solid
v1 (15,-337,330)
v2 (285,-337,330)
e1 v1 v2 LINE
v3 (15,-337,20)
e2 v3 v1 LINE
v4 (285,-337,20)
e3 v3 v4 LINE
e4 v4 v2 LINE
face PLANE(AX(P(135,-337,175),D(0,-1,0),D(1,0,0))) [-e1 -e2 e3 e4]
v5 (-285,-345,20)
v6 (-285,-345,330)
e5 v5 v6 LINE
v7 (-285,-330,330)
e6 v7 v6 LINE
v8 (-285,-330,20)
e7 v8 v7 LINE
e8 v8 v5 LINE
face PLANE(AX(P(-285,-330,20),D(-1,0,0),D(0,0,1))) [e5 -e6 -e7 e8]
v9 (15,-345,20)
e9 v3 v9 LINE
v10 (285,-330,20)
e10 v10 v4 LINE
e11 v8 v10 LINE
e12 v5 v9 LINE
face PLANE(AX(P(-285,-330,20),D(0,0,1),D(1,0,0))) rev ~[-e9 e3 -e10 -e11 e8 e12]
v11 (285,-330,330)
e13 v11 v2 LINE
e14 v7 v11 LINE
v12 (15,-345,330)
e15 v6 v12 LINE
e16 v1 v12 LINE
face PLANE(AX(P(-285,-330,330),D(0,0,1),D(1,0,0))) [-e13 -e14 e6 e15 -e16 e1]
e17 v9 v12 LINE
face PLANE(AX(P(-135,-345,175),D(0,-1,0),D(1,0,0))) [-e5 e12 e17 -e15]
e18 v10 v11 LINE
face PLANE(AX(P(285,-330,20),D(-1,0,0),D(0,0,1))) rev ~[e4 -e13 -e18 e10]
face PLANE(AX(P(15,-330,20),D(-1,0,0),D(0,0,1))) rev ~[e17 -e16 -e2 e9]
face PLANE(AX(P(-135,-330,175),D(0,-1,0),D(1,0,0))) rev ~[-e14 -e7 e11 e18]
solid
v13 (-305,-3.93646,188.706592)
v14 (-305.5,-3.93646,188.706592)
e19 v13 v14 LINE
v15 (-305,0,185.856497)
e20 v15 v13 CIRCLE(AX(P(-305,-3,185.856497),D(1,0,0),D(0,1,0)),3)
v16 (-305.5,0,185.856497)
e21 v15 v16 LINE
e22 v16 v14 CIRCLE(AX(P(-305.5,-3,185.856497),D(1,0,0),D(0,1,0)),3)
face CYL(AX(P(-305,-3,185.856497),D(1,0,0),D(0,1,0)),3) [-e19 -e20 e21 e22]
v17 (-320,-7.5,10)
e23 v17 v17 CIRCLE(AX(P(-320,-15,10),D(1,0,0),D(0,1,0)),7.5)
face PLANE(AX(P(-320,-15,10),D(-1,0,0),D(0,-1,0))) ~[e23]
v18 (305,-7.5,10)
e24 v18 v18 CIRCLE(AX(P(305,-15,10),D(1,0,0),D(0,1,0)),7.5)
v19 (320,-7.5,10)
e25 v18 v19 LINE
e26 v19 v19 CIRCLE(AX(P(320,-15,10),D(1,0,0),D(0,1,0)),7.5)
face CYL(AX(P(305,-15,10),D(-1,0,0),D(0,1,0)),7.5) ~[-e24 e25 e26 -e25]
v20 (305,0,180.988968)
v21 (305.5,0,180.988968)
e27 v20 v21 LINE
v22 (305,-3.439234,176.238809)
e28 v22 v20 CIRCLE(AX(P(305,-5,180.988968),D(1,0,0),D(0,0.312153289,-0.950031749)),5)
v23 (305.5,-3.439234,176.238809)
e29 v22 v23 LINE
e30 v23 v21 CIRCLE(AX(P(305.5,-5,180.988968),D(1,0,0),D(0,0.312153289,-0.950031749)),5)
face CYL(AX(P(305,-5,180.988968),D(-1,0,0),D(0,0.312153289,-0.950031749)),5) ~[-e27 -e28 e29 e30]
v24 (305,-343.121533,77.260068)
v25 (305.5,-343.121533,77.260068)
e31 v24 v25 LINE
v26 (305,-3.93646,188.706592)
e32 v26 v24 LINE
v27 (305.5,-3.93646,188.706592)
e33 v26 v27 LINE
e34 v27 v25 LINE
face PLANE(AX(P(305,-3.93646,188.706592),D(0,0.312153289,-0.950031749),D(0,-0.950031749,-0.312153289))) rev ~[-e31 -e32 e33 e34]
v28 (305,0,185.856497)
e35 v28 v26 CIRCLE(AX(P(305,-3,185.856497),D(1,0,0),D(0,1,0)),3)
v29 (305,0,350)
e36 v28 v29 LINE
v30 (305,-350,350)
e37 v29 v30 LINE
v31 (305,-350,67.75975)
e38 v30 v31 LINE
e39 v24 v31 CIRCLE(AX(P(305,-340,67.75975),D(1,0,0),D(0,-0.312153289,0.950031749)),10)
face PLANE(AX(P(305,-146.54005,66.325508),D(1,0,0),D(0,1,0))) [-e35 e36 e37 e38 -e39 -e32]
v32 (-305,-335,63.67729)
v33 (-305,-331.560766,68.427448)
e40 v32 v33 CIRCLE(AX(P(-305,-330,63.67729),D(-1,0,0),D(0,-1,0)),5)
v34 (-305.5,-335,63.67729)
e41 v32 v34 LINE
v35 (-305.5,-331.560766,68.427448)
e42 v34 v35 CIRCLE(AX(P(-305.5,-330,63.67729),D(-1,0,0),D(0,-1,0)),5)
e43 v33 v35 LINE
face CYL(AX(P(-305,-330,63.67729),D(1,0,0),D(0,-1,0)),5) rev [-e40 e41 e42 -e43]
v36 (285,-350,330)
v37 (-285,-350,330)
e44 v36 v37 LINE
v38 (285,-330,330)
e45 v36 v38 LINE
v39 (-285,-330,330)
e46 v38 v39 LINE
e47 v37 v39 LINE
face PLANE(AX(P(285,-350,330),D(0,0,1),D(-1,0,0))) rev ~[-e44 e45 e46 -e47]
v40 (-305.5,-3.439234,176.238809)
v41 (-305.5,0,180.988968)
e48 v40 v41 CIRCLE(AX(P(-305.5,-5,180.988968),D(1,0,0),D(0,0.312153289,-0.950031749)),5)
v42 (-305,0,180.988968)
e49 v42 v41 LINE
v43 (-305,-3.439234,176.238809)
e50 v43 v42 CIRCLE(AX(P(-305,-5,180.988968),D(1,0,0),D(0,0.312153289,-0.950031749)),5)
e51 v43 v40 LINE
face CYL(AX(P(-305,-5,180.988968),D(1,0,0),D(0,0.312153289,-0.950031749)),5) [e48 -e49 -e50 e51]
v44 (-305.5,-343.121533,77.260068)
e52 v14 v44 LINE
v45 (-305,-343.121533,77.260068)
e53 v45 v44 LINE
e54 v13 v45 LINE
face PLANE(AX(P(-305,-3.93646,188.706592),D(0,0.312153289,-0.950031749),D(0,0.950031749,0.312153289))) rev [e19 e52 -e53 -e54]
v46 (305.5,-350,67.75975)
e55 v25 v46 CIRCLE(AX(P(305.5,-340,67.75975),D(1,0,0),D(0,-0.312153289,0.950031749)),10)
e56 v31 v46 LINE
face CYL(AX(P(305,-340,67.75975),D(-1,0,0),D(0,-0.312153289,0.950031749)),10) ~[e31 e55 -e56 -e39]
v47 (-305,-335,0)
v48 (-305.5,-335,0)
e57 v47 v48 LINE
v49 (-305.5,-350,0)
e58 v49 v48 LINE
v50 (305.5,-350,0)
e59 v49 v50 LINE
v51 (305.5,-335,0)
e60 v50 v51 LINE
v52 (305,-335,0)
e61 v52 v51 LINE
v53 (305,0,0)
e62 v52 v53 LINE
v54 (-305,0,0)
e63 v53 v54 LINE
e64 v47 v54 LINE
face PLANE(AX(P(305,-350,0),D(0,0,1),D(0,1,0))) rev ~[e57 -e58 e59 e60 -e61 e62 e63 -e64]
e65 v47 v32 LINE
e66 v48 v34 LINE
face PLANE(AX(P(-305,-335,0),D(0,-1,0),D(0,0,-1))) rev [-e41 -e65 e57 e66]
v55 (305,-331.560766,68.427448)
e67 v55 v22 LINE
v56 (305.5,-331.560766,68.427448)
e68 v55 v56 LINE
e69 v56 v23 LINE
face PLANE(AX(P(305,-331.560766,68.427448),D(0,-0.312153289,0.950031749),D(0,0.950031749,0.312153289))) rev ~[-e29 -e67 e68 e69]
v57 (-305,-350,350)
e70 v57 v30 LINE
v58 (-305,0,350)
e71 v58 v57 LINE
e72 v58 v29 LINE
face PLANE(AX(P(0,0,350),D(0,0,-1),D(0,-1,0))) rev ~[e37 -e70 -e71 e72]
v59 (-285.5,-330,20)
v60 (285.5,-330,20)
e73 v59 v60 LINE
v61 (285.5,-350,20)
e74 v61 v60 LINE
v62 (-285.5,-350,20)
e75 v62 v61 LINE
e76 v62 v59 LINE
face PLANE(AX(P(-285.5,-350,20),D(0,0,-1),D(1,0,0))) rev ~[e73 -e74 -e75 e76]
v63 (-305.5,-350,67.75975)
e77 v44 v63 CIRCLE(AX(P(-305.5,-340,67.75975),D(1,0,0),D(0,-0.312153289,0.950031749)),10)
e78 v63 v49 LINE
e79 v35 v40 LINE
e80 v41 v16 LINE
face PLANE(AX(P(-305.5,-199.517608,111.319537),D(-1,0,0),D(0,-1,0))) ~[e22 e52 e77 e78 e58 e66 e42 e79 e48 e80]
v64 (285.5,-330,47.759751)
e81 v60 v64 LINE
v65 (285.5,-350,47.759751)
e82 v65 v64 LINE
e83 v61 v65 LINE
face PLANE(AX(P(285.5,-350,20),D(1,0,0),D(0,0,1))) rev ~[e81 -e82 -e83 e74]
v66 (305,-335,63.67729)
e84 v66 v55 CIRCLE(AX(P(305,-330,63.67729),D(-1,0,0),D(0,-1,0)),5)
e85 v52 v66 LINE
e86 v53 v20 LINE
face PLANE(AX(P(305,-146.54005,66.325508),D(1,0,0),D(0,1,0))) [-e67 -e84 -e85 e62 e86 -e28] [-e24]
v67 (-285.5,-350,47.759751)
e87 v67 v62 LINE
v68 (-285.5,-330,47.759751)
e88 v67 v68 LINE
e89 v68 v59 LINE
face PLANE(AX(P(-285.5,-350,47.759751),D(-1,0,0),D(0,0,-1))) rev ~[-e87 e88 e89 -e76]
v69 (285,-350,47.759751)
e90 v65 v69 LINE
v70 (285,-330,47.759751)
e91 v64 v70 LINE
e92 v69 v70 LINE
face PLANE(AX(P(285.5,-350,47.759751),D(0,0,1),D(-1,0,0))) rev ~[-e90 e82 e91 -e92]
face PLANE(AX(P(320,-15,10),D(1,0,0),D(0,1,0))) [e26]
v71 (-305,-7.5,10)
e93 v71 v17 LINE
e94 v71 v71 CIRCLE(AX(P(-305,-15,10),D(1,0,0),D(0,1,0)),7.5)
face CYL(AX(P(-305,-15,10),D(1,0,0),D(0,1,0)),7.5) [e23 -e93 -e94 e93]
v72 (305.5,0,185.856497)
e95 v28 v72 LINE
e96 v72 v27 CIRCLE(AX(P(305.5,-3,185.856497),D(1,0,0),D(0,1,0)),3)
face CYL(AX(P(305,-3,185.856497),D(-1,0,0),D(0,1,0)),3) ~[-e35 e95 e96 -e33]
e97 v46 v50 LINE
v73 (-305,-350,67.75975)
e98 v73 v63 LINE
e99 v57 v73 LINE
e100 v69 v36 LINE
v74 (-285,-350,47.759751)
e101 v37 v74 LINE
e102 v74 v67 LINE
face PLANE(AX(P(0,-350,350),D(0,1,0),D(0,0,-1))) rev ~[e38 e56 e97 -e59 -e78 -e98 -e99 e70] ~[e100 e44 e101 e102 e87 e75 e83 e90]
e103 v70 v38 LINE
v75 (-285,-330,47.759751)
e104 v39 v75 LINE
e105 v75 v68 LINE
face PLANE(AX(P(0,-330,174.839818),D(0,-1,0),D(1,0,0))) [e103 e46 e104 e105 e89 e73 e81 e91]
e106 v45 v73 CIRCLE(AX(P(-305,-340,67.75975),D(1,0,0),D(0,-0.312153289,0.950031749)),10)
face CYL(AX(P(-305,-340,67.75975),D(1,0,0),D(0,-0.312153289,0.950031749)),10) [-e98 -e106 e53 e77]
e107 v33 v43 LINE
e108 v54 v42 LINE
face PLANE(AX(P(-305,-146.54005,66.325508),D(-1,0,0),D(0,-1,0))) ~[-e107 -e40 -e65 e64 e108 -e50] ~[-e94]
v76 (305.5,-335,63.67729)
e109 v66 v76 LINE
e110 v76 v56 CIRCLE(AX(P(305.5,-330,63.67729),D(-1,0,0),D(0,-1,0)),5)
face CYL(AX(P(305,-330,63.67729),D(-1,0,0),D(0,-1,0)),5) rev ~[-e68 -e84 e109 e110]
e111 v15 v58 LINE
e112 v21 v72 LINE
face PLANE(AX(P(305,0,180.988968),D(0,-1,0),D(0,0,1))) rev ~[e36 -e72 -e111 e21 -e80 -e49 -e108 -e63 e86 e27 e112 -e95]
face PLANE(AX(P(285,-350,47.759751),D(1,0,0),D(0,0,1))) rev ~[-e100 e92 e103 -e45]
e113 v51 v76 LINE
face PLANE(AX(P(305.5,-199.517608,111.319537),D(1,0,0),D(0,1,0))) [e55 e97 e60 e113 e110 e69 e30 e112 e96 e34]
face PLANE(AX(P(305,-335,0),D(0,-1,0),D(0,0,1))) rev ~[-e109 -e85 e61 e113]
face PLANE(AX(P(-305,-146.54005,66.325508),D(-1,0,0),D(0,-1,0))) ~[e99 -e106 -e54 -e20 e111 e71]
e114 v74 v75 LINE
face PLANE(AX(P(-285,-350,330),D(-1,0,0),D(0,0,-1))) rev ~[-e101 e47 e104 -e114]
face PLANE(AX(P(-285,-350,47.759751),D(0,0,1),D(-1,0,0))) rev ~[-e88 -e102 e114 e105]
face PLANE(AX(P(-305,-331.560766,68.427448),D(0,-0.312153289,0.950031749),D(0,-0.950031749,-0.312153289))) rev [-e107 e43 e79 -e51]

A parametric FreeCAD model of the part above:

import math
import FreeCAD as App
import Part
import Sketcher
from FreeCAD import Vector


def add_polygon(sketch, points):
    """Adds a closed chain of lines whose ends are joined by coincident constraints."""
    first, n = sketch.GeometryCount, len(points)
    for a, b in zip(points, points[1:] + points[:1]):
        sketch.addGeometry(Part.LineSegment(App.Vector(*a, 0), App.Vector(*b, 0)), False)
    for i in range(n):
        sketch.addConstraint(Sketcher.Constraint("Coincident", first + i, 2, first + (i + 1) % n, 1))

doc = App.newDocument("Part")
body = doc.addObject("PartDesign::Body", "Body")

sketch1 = body.newObject("Sketcher::SketchObject", "Sketch")
sketch1.AttachmentSupport = (doc.getObject("YZ_Plane"), [""])
sketch1.MapMode = "FlatFace"
add_polygon(sketch1, [(0, 0), (0, 350), (-350, 350), (-350, 0)])
sketch1.addConstraint([
    Sketcher.Constraint("Vertical", 0),
    Sketcher.Constraint("Horizontal", 1),
    Sketcher.Constraint("Vertical", 2),
    Sketcher.Constraint("Horizontal", 3),
    Sketcher.Constraint("Coincident", 3, 2, -1, 1),
    Sketcher.Constraint("Equal", 3, 0),
    Sketcher.Constraint("DistanceX", 1, 2, 1, 1, 350.0),
])
pad1 = body.newObject("PartDesign::Pad", "Pad")
pad1.Profile = sketch1
pad1.Length = 305

sketch2 = body.newObject("Sketcher::SketchObject", "Sketch001")
sketch2.AttachmentSupport = (doc.getObject("YZ_Plane"), [""])
sketch2.MapMode = "FlatFace"
sketch2.AttachmentOffset = App.Placement(Vector(0, 0, 305), App.Rotation())
sketch2.addGeometry(Part.Circle(Vector(-15, 10, 0), Vector(0, 0, 1), 8), False)
sketch2.addConstraint([
    Sketcher.Constraint("Diameter", 0, 15.0),
    Sketcher.Constraint("DistanceX", 0, 3, -1, 1, 15.0),
    Sketcher.Constraint("DistanceY", -1, 1, 0, 3, 10.0),
])
pad2 = body.newObject("PartDesign::Pad", "Pad001")
pad2.Profile = sketch2
pad2.Length = 15
body2 = doc.addObject("PartDesign::Body", "Body001")

sketch3 = body2.newObject("Sketcher::SketchObject", "Sketch002")
sketch3.AttachmentSupport = (doc.getObject("YZ_Plane001"), [""])
sketch3.MapMode = "FlatFace"
sketch3.AttachmentOffset = App.Placement(Vector(0, 0, 305), App.Rotation())
sketch3.addGeometry([
    Part.ArcOfCircle(Part.Circle(Vector(-3, 185.9, 0), Vector(0, 0, 1), 3), math.radians(0), math.radians(108)),
    Part.LineSegment(Vector(-3.9, 188.7, 0), Vector(-343.1, 77.3, 0)),
    Part.ArcOfCircle(Part.Circle(Vector(-340, 67.8, 0), Vector(0, 0, 1), 10), math.radians(108), math.radians(180)),
    Part.LineSegment(Vector(-350, 67.8, 0), Vector(-350, 0, 0)),
    Part.LineSegment(Vector(-350, 0, 0), Vector(-335, 0, 0)),
    Part.LineSegment(Vector(-335, 0, 0), Vector(-335, 63.7, 0)),
    Part.ArcOfCircle(Part.Circle(Vector(-330, 63.7, 0), Vector(0, 0, 1), 5), math.radians(108), math.radians(180)),
    Part.LineSegment(Vector(-331.6, 68.4, 0), Vector(-3.4, 176.2, 0)),
    Part.ArcOfCircle(Part.Circle(Vector(-5, 181, 0), Vector(0, 0, 1), 5), math.radians(-72), math.radians(0)),
    Part.LineSegment(Vector(0, 181, 0), Vector(0, 185.9, 0)),
], False)
sketch3.addConstraint([
    Sketcher.Constraint("Tangent", 0, 2, 1, 1),
    Sketcher.Constraint("Tangent", 1, 2, 2, 1),
    Sketcher.Constraint("Tangent", 2, 2, 3, 1),
    Sketcher.Constraint("Coincident", 3, 2, 4, 1),
    Sketcher.Constraint("Coincident", 4, 2, 5, 1),
    Sketcher.Constraint("Tangent", 5, 2, 6, 2),
    Sketcher.Constraint("Tangent", 6, 1, 7, 1),
    Sketcher.Constraint("Tangent", 7, 2, 8, 1),
    Sketcher.Constraint("Tangent", 8, 2, 9, 1),
    Sketcher.Constraint("Tangent", 9, 2, 0, 1),
    Sketcher.Constraint("Vertical", 3),
    Sketcher.Constraint("Horizontal", 4),
    Sketcher.Constraint("Vertical", 5),
    Sketcher.Constraint("Vertical", 9),
    Sketcher.Constraint("Equal", 6, 8),
    Sketcher.Constraint("PointOnObject", 3, 2, -1),
    Sketcher.Constraint("PointOnObject", 8, 2, -2),
    Sketcher.Constraint("Parallel", 1, 7),
    Sketcher.Constraint("Radius", 0, 3.0),
    Sketcher.Constraint("Radius", 2, 10.0),
    Sketcher.Constraint("Radius", 6, 5.0),
    Sketcher.Constraint("DistanceX", 4, 1, 4, 2, 15.0),
    Sketcher.Constraint("DistanceX", 2, 3, -1, 1, 340.0),
    Sketcher.Constraint("DistanceY", 3, 2, 3, 1, 67.75975),
    Sketcher.Constraint("DistanceY", 5, 1, 5, 2, 63.67729),
    Sketcher.Constraint("DistanceY", 9, 1, 9, 2, 4.867528),
])
pad3 = body2.newObject("PartDesign::Pad", "Pad002")
pad3.Profile = sketch3
pad3.Length = 0.5
body3 = doc.addObject("PartDesign::Body", "Body002")
doc.recompute()

mirroring = doc.addObject("Part::Mirroring", "Mirroring")
mirroring.Source = body
mirroring.Base = Vector(0, 0, 0)
mirroring.Normal = Vector(1, 0, 0)
body3.BaseFeature = mirroring
doc.recompute()
body4 = doc.addObject("PartDesign::Body", "Body003")
doc.recompute()

mirroring2 = doc.addObject("Part::Mirroring", "Mirroring001")
mirroring2.Source = body2
mirroring2.Base = Vector(0, 0, 0)
mirroring2.Normal = Vector(1, 0, 0)
body4.BaseFeature = mirroring2
doc.recompute()

boolean = body3.newObject("PartDesign::Boolean", "Boolean")
boolean.Type = "Fuse"
boolean.addObjects([body])
doc.recompute()

boolean2 = body3.newObject("PartDesign::Boolean", "Boolean001")
boolean2.Type = "Fuse"
boolean2.addObjects([body4])
doc.recompute()

boolean3 = body3.newObject("PartDesign::Boolean", "Boolean002")
boolean3.Type = "Fuse"
boolean3.addObjects([body2])

sketch4 = body3.newObject("Sketcher::SketchObject", "Sketch003")
sketch4.AttachmentSupport = (doc.getObject("XZ_Plane002"), [""])
sketch4.MapMode = "FlatFace"
sketch4.AttachmentOffset = App.Placement(Vector(0, 0, 350), App.Rotation())
add_polygon(sketch4, [(-285, 47.8), (-285.5, 47.8), (-285.5, 20), (285.5, 20), (285.5, 47.8), (285, 47.8), (285, 330), (-285, 330)])
sketch4.addConstraint([
    Sketcher.Constraint("Horizontal", 0),
    Sketcher.Constraint("Vertical", 1),
    Sketcher.Constraint("Horizontal", 2),
    Sketcher.Constraint("Vertical", 3),
    Sketcher.Constraint("Horizontal", 4),
    Sketcher.Constraint("Vertical", 5),
    Sketcher.Constraint("Horizontal", 6),
    Sketcher.Constraint("Vertical", 7),
    Sketcher.Constraint("Symmetric", 0, 2, 3, 2, -2),
    Sketcher.Constraint("Equal", 0, 4),
    Sketcher.Constraint("DistanceX", 2, 1, 2, 2, 571.000001),
    Sketcher.Constraint("DistanceX", 6, 2, 6, 1, 570.000001),
    Sketcher.Constraint("DistanceY", -1, 1, 1, 2, 20.0),
    Sketcher.Constraint("DistanceY", -1, 1, 5, 2, 330.0),
    Sketcher.Constraint("DistanceY", 1, 2, 1, 1, 27.759751),
])
pocket1 = body3.newObject("PartDesign::Pocket", "Pocket")
pocket1.Profile = sketch4
pocket1.Length = 20
body5 = doc.addObject("PartDesign::Body", "Body004")

sketch5 = body5.newObject("Sketcher::SketchObject", "Sketch004")
sketch5.AttachmentSupport = (doc.getObject("XZ_Plane004"), [""])
sketch5.MapMode = "FlatFace"
sketch5.AttachmentOffset = App.Placement(Vector(0, 0, 330), App.Rotation())
add_polygon(sketch5, [(-285, 330), (-285, 20), (15, 20), (15, 330)])
sketch5.addConstraint([
    Sketcher.Constraint("Vertical", 0),
    Sketcher.Constraint("Horizontal", 1),
    Sketcher.Constraint("Vertical", 2),
    Sketcher.Constraint("Horizontal", 3),
    Sketcher.Constraint("DistanceX", 1, 1, 1, 2, 300.0),
    Sketcher.Constraint("DistanceY", 0, 2, 0, 1, 310.000001),
    Sketcher.Constraint("DistanceX", 0, 2, -1, 1, 285.0),
    Sketcher.Constraint("DistanceY", -1, 1, 0, 2, 20.0),
])
pad4 = body5.newObject("PartDesign::Pad", "Pad003")
pad4.Profile = sketch5
pad4.Length = 15

sketch6 = body5.newObject("Sketcher::SketchObject", "Sketch005")
sketch6.AttachmentSupport = (doc.getObject("XZ_Plane004"), [""])
sketch6.MapMode = "FlatFace"
sketch6.AttachmentOffset = App.Placement(Vector(0, 0, 330), App.Rotation())
add_polygon(sketch6, [(-15, 330), (-15, 20), (285, 20), (285, 330)])
sketch6.addConstraint([
    Sketcher.Constraint("Vertical", 0),
    Sketcher.Constraint("Horizontal", 1),
    Sketcher.Constraint("Vertical", 2),
    Sketcher.Constraint("Horizontal", 3),
    Sketcher.Constraint("DistanceX", 1, 1, 1, 2, 300.0),
    Sketcher.Constraint("DistanceY", 0, 2, 0, 1, 310.000001),
    Sketcher.Constraint("DistanceX", 0, 2, -1, 1, 15.0),
    Sketcher.Constraint("DistanceY", -1, 1, 0, 2, 20.0),
])
pad5 = body5.newObject("PartDesign::Pad", "Pad004")
pad5.Profile = sketch6
pad5.Length = 7
mirroring.Visibility = False
mirroring2.Visibility = False

doc.recompute()
